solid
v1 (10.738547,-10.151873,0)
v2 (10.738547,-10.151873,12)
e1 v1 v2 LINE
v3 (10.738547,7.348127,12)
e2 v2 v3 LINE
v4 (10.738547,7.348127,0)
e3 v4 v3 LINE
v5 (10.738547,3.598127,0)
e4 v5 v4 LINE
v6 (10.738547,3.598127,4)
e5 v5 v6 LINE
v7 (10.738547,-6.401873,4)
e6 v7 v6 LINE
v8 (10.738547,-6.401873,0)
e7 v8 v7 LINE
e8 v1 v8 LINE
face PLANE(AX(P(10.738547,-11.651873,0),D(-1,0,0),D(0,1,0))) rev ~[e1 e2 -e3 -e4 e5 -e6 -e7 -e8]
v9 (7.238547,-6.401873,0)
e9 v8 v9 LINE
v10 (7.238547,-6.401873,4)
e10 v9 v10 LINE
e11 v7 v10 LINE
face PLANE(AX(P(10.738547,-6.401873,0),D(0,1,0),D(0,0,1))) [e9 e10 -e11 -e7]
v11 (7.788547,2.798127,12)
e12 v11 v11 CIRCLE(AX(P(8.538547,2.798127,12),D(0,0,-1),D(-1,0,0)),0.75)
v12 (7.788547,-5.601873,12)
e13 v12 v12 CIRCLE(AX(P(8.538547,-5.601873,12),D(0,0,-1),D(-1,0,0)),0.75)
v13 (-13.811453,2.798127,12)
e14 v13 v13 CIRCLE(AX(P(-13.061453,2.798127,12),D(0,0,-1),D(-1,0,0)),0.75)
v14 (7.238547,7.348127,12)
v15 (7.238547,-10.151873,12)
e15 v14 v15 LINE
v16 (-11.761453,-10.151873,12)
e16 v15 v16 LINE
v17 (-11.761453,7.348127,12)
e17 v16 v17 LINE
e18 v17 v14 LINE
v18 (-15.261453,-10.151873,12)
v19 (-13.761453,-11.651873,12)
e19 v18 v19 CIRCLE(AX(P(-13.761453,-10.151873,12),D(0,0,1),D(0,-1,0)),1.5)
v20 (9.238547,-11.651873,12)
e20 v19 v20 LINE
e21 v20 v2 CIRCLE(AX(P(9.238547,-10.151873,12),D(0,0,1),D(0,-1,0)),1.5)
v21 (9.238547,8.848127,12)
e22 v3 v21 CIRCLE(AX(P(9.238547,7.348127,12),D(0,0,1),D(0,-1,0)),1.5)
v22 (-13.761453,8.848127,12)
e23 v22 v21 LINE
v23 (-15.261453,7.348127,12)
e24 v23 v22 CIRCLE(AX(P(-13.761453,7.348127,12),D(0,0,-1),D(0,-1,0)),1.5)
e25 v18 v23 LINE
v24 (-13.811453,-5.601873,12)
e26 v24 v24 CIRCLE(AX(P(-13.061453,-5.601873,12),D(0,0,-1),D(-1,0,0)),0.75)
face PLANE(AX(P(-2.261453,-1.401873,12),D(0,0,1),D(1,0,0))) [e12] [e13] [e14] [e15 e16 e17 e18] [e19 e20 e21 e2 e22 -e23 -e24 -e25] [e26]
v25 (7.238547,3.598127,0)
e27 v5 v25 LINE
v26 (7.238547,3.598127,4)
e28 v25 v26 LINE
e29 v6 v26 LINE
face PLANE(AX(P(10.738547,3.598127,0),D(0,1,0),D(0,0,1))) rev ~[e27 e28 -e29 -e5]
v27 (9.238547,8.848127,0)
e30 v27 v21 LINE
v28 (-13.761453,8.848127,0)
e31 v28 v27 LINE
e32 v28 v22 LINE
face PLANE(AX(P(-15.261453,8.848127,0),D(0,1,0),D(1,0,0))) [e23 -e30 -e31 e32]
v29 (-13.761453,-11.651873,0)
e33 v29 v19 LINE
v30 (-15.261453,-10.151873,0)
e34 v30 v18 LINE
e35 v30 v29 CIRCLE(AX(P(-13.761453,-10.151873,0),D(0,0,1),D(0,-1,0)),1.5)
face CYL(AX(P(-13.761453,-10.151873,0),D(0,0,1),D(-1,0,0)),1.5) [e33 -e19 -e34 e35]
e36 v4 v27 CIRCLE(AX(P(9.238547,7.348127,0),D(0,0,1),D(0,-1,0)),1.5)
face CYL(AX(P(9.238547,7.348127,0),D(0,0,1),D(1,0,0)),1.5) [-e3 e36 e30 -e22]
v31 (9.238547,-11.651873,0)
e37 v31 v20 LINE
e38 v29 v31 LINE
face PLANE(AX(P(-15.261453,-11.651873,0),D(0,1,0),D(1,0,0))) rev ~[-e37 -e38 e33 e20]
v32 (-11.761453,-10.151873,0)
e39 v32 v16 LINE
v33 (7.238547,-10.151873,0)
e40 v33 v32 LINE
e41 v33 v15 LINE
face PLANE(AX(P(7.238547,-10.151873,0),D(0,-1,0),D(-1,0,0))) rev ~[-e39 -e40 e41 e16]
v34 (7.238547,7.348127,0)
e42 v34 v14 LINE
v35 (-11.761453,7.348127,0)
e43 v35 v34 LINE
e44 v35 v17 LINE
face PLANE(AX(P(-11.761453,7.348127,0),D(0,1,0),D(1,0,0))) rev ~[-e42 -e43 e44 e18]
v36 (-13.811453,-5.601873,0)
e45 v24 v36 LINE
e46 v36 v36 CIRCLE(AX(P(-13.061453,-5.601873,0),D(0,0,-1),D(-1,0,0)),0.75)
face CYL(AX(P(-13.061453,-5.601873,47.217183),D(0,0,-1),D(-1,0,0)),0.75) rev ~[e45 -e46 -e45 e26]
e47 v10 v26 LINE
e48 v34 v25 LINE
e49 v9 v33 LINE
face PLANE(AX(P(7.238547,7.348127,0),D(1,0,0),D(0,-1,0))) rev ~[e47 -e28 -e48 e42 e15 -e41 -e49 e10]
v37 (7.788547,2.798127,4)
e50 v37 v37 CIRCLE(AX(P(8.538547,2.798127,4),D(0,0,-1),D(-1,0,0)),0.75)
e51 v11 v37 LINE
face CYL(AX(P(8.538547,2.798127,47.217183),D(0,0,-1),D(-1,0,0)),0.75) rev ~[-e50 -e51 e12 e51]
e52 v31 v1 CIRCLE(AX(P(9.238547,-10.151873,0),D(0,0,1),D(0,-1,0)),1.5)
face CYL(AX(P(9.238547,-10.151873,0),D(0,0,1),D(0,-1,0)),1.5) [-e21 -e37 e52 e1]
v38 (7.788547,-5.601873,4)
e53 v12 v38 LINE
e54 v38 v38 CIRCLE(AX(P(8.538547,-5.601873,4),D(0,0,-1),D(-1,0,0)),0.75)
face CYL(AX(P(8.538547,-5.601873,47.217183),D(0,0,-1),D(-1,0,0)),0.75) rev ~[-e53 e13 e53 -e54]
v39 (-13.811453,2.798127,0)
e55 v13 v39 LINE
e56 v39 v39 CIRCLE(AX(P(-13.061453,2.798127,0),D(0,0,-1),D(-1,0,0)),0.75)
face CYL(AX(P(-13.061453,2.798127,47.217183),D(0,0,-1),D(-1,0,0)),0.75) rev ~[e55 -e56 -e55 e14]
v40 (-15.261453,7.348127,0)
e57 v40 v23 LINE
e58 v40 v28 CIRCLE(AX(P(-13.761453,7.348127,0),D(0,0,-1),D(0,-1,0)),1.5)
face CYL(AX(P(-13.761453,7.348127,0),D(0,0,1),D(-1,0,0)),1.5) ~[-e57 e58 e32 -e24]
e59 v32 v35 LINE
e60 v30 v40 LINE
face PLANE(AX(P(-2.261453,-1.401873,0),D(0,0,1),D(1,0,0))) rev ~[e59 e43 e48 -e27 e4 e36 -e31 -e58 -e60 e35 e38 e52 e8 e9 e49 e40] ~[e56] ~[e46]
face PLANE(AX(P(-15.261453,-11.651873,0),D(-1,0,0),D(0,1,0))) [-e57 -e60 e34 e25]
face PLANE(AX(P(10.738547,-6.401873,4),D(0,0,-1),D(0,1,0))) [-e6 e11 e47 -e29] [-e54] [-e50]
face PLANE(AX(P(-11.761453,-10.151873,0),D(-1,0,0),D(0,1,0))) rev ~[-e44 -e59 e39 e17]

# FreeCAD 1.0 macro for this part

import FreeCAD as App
import Part
import Sketcher
from FreeCAD import Vector
Q = App.Units.Quantity


def edges_at(feature, points):
    """Names of the edges that pass closest to the given points."""
    edges = feature.Shape.Edges
    near = lambda p: min(range(len(edges)), key=lambda i: edges[i].distToShape(Part.Vertex(*p))[0])
    return sorted({f"Edge{near(p) + 1}" for p in points})


def add_polygon(sketch, points):
    """Adds a closed chain of lines whose ends are joined by coincident constraints."""
    first, n = sketch.GeometryCount, len(points)
    for a, b in zip(points, points[1:] + points[:1]):
        sketch.addGeometry(Part.LineSegment(App.Vector(*a, 0), App.Vector(*b, 0)), False)
    for i in range(n):
        sketch.addConstraint(Sketcher.Constraint("Coincident", first + i, 2, first + (i + 1) % n, 1))

doc = App.newDocument("Part")
body = doc.addObject("PartDesign::Body", "Body")

sketch1 = doc.addObject("Sketcher::SketchObject", "Sketch")
body.addObject(sketch1)
sketch1.AttachmentSupport = (doc.XY_Plane, [""])
sketch1.MapMode = "FlatFace"
add_polygon(sketch1, [(-15.261453, 8.848127), (-15.261453, -11.651873), (10.738547, -11.651873), (10.738547, 8.848127)])
add_polygon(sketch1, [(7.238547, -10.151873), (-11.761453, -10.151873), (-11.761453, 7.348127), (7.238547, 7.348127)])
sketch1.addConstraint([
    Sketcher.Constraint("Vertical", 0),
    Sketcher.Constraint("Horizontal", 1),
    Sketcher.Constraint("Vertical", 2),
    Sketcher.Constraint("Horizontal", 3),
    Sketcher.Constraint("Horizontal", 4),
    Sketcher.Constraint("Vertical", 5),
    Sketcher.Constraint("Horizontal", 6),
    Sketcher.Constraint("Vertical", 7),
    Sketcher.Constraint("DistanceX", 1, 1, 1, 2, Q("26 mm")),
    Sketcher.Constraint("DistanceX", 4, 2, 4, 1, Q("19 mm")),
    Sketcher.Constraint("DistanceY", 0, 2, 0, 1, Q("20.5 mm")),
    Sketcher.Constraint("DistanceY", 5, 1, 5, 2, Q("17.5 mm")),
    Sketcher.Constraint("DistanceY", 4, 2, 3, 2, Q("19 mm")),
    Sketcher.Constraint("DistanceX", 0, 2, 4, 2, Q("3.5 mm")),
    Sketcher.Constraint("DistanceX", 0, 2, -1, 1, Q("15.261453 mm")),
    Sketcher.Constraint("DistanceY", 0, 2, -1, 1, Q("11.651873 mm")),
])
pad1 = doc.addObject("PartDesign::Pad", "Pad")
body.addObject(pad1)
pad1.Profile = sketch1
pad1.Length = 12
doc.recompute()

fillet = doc.addObject("PartDesign::Fillet", "Fillet")
body.addObject(fillet)
fillet.Base = (pad1, edges_at(pad1, [
    (10.739, 8.848, 6),
    (10.739, -11.652, 6),
    (-15.261, -11.652, 6),
    (-15.261, 8.848, 6),
]))
fillet.Radius = 1.5

sketch2 = doc.addObject("Sketcher::SketchObject", "Sketch001")
body.addObject(sketch2)
sketch2.AttachmentSupport = (doc.XY_Plane, [""])
sketch2.MapMode = "FlatFace"
sketch2.AttachmentOffset = App.Placement(Vector(0, 0, 12), App.Rotation())
sketch2.addGeometry(Part.Circle(Vector(-13.061453, 2.798127, 0), Vector(0, 0, 1), 0.75), False)
sketch2.addConstraint([
    Sketcher.Constraint("Diameter", 0, Q("1.5 mm")),
    Sketcher.Constraint("DistanceX", 0, 3, -1, 1, Q("13.061453 mm")),
    Sketcher.Constraint("DistanceY", -1, 1, 0, 3, Q("2.798127 mm")),
])
doc.recompute()
hole = doc.addObject("PartDesign::Hole", "Hole")
body.addObject(hole)
hole.Profile = sketch2
hole.ThreadType = "None"
hole.Diameter = 1.5
hole.DepthType = "ThroughAll"

sketch3 = doc.addObject("Sketcher::SketchObject", "Sketch002")
body.addObject(sketch3)
sketch3.AttachmentSupport = (doc.XY_Plane, [""])
sketch3.MapMode = "FlatFace"
sketch3.AttachmentOffset = App.Placement(Vector(0, 0, 12), App.Rotation())
sketch3.addGeometry(Part.Circle(Vector(-13.061453, -5.601873, 0), Vector(0, 0, 1), 0.75), False)
sketch3.addConstraint([
    Sketcher.Constraint("Diameter", 0, Q("1.5 mm")),
    Sketcher.Constraint("DistanceX", 0, 3, -1, 1, Q("13.061453 mm")),
    Sketcher.Constraint("DistanceY", 0, 3, -1, 1, Q("5.601873 mm")),
])
doc.recompute()
hole2 = doc.addObject("PartDesign::Hole", "Hole001")
body.addObject(hole2)
hole2.Profile = sketch3
hole2.ThreadType = "None"
hole2.Diameter = 1.5
hole2.DepthType = "ThroughAll"

sketch4 = doc.addObject("Sketcher::SketchObject", "Sketch003")
body.addObject(sketch4)
sketch4.AttachmentSupport = (doc.XY_Plane, [""])
sketch4.MapMode = "FlatFace"
sketch4.AttachmentOffset = App.Placement(Vector(0, 0, 12), App.Rotation())
sketch4.addGeometry(Part.Circle(Vector(8.538547, -5.601873, 0), Vector(0, 0, 1), 0.75), False)
sketch4.addConstraint([
    Sketcher.Constraint("Diameter", 0, Q("1.5 mm")),
    Sketcher.Constraint("DistanceX", -1, 1, 0, 3, Q("8.538547 mm")),
    Sketcher.Constraint("DistanceY", 0, 3, -1, 1, Q("5.601873 mm")),
])
doc.recompute()
hole3 = doc.addObject("PartDesign::Hole", "Hole002")
body.addObject(hole3)
hole3.Profile = sketch4
hole3.ThreadType = "None"
hole3.Diameter = 1.5
hole3.DepthType = "ThroughAll"

sketch5 = doc.addObject("Sketcher::SketchObject", "Sketch004")
body.addObject(sketch5)
sketch5.AttachmentSupport = (doc.XY_Plane, [""])
sketch5.MapMode = "FlatFace"
sketch5.AttachmentOffset = App.Placement(Vector(0, 0, 12), App.Rotation())
sketch5.addGeometry(Part.Circle(Vector(8.538547, 2.798127, 0), Vector(0, 0, 1), 0.75), False)
sketch5.addConstraint([
    Sketcher.Constraint("Diameter", 0, Q("1.5 mm")),
    Sketcher.Constraint("DistanceX", -1, 1, 0, 3, Q("8.538547 mm")),
    Sketcher.Constraint("DistanceY", -1, 1, 0, 3, Q("2.798127 mm")),
])
doc.recompute()
hole4 = doc.addObject("PartDesign::Hole", "Hole003")
body.addObject(hole4)
hole4.Profile = sketch5
hole4.ThreadType = "None"
hole4.Diameter = 1.5
hole4.DepthType = "ThroughAll"

sketch6 = doc.addObject("Sketcher::SketchObject", "Sketch005")
body.addObject(sketch6)
sketch6.AttachmentSupport = (doc.YZ_Plane, [""])
sketch6.MapMode = "FlatFace"
sketch6.AttachmentOffset = App.Placement(Vector(0, 0, 10.738547), App.Rotation())
add_polygon(sketch6, [(-6.401873, 4), (-6.401873, 0), (3.598127, 0), (3.598127, 4)])
sketch6.addConstraint([
    Sketcher.Constraint("Vertical", 0),
    Sketcher.Constraint("Horizontal", 1),
    Sketcher.Constraint("Vertical", 2),
    Sketcher.Constraint("Horizontal", 3),
    Sketcher.Constraint("PointOnObject", 0, 2, -1),
    Sketcher.Constraint("DistanceX", 1, 1, 1, 2, Q("10 mm")),
    Sketcher.Constraint("DistanceY", 0, 2, 0, 1, Q("4 mm")),
    Sketcher.Constraint("DistanceX", 0, 2, -1, 1, Q("6.401873 mm")),
])
pocket1 = doc.addObject("PartDesign::Pocket", "Pocket")
body.addObject(pocket1)
pocket1.Profile = sketch6
pocket1.Length = 10

doc.recompute()
